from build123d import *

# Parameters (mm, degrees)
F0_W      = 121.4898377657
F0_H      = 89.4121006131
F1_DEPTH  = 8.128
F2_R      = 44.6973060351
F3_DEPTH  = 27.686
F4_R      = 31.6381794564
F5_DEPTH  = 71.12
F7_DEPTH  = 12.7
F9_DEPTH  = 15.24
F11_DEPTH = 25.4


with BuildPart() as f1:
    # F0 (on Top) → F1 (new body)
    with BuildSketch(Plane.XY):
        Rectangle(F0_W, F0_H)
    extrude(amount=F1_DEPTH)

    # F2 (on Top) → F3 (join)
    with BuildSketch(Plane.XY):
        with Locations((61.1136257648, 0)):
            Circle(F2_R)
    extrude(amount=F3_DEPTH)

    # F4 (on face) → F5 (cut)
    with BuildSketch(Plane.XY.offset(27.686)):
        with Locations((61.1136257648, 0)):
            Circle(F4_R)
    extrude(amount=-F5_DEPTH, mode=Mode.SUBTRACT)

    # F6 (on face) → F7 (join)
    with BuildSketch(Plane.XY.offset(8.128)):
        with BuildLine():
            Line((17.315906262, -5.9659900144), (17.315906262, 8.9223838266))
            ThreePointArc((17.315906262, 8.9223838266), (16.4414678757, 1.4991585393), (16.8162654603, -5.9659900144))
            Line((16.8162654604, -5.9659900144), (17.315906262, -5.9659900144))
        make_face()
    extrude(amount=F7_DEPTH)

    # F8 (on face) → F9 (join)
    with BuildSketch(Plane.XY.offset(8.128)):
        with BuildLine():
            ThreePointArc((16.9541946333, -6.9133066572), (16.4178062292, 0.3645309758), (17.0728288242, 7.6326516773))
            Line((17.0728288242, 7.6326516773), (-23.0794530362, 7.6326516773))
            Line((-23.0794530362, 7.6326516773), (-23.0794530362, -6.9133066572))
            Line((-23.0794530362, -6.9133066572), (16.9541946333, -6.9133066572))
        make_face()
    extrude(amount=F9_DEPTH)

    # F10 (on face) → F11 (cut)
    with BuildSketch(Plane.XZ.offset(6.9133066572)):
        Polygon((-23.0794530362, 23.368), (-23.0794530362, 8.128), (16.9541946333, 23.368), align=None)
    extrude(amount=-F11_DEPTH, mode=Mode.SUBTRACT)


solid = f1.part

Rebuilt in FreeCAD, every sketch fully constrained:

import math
import FreeCAD as App
import Part
import Sketcher
from FreeCAD import Vector
Q = App.Units.Quantity

doc = App.newDocument("Part")
body = doc.addObject("PartDesign::Body", "Body")

# Sketch on XY plane
sketch1 = doc.addObject("Sketcher::SketchObject", "Sketch")
body.addObject(sketch1)
sketch1.AttachmentSupport = (doc.XY_Plane, [""])
sketch1.MapMode = "FlatFace"
sketch1.addGeometry([
    Part.LineSegment(Vector(-60.744919, 44.70605, 0), Vector(-60.744919, -44.70605, 0)),
    Part.LineSegment(Vector(-60.744919, -44.70605, 0), Vector(60.744919, -44.70605, 0)),
    Part.LineSegment(Vector(60.744919, -44.70605, 0), Vector(60.744919, 44.70605, 0)),
    Part.LineSegment(Vector(60.744919, 44.70605, 0), Vector(-60.744919, 44.70605, 0)),
], False)
sketch1.addConstraint([
    Sketcher.Constraint("Coincident", 0, 2, 1, 1),
    Sketcher.Constraint("Coincident", 1, 2, 2, 1),
    Sketcher.Constraint("Coincident", 2, 2, 3, 1),
    Sketcher.Constraint("Coincident", 3, 2, 0, 1),
    Sketcher.Constraint("Vertical", 0),
    Sketcher.Constraint("Horizontal", 1),
    Sketcher.Constraint("Vertical", 2),
    Sketcher.Constraint("Horizontal", 3),
    Sketcher.Constraint("Symmetric", 0, 2, 2, 2, -1, 1),
    Sketcher.Constraint("DistanceY", 0, 2, 0, 1, Q("89.412101 mm")),
    Sketcher.Constraint("DistanceX", 1, 1, 1, 2, Q("121.489838 mm")),
])
pad1 = doc.addObject("PartDesign::Pad", "Pad")
body.addObject(pad1)
pad1.Profile = sketch1
pad1.Length = Q("0.32 in")

# Sketch on XY plane
sketch2 = doc.addObject("Sketcher::SketchObject", "Sketch001")
body.addObject(sketch2)
sketch2.AttachmentSupport = (doc.XY_Plane, [""])
sketch2.MapMode = "FlatFace"
sketch2.addGeometry(Part.Circle(Vector(61.113626, 0, 0), Vector(0, 0, 1), 44.697306), False)
sketch2.addConstraint([
    Sketcher.Constraint("PointOnObject", 0, 3, -1),
    Sketcher.Constraint("Diameter", 0, Q("89.394612 mm")),
    Sketcher.Constraint("DistanceX", -1, 1, 0, 3, Q("61.113626 mm")),
])
pad2 = doc.addObject("PartDesign::Pad", "Pad001")
body.addObject(pad2)
pad2.Profile = sketch2
pad2.Length = Q("1.09 in")

# Sketch on XY plane
sketch3 = doc.addObject("Sketcher::SketchObject", "Sketch002")
body.addObject(sketch3)
sketch3.AttachmentSupport = (doc.XY_Plane, [""])
sketch3.MapMode = "FlatFace"
sketch3.AttachmentOffset = App.Placement(Vector(0, 0, 1.09 * 25.4), App.Rotation())
sketch3.addGeometry(Part.Circle(Vector(61.113626, 0, 0), Vector(0, 0, 1), 31.638179), False)
sketch3.addConstraint([
    Sketcher.Constraint("PointOnObject", 0, 3, -1),
    Sketcher.Constraint("Diameter", 0, Q("63.276359 mm")),
    Sketcher.Constraint("DistanceX", -1, 1, 0, 3, Q("61.113626 mm")),
])
pocket1 = doc.addObject("PartDesign::Pocket", "Pocket")
body.addObject(pocket1)
pocket1.Profile = sketch3
pocket1.Length = Q("2.8 in")

# Sketch on XY plane
sketch4 = doc.addObject("Sketcher::SketchObject", "Sketch003")
body.addObject(sketch4)
sketch4.AttachmentSupport = (doc.XY_Plane, [""])
sketch4.MapMode = "FlatFace"
sketch4.AttachmentOffset = App.Placement(Vector(0, 0, 0.32 * 25.4), App.Rotation())
sketch4.addGeometry([
    Part.LineSegment(Vector(17.315906, -5.96599, 0), Vector(17.315906, 8.922384, 0)),
    Part.ArcOfCircle(Part.Circle(Vector(61.113626, 0, 0), Vector(0, 0, 1), 44.697306), math.radians(168.485382), math.radians(187.670468)),
    Part.LineSegment(Vector(16.816265, -5.96599, 0), Vector(17.315906, -5.96599, 0)),
], False)
sketch4.addConstraint([
    Sketcher.Constraint("Coincident", 0, 2, 1, 1),
    Sketcher.Constraint("Coincident", 1, 2, 2, 1),
    Sketcher.Constraint("Coincident", 2, 2, 0, 1),
    Sketcher.Constraint("Vertical", 0),
    Sketcher.Constraint("Horizontal", 2),
    Sketcher.Constraint("PointOnObject", 1, 3, -1),
    Sketcher.Constraint("Radius", 1, Q("44.697306 mm")),
    Sketcher.Constraint("DistanceX", 2, 1, 2, 2, Q("0.499641 mm")),
    Sketcher.Constraint("DistanceY", 0, 1, 0, 2, Q("14.888374 mm")),
    Sketcher.Constraint("DistanceX", -1, 1, 1, 3, Q("61.113626 mm")),
])
pad3 = doc.addObject("PartDesign::Pad", "Pad002")
body.addObject(pad3)
pad3.Profile = sketch4
pad3.Length = Q("0.5 in")

# Sketch on XY plane
sketch5 = doc.addObject("Sketcher::SketchObject", "Sketch004")
body.addObject(sketch5)
sketch5.AttachmentSupport = (doc.XY_Plane, [""])
sketch5.MapMode = "FlatFace"
sketch5.AttachmentOffset = App.Placement(Vector(0, 0, 0.32 * 25.4), App.Rotation())
sketch5.addGeometry([
    Part.ArcOfCircle(Part.Circle(Vector(61.113626, 0, 0), Vector(0, 0, 1), 44.697306), math.radians(170.167808), math.radians(188.897625)),
    Part.LineSegment(Vector(17.072829, 7.632652, 0), Vector(-23.079453, 7.632652, 0)),
    Part.LineSegment(Vector(-23.079453, 7.632652, 0), Vector(-23.079453, -6.913307, 0)),
    Part.LineSegment(Vector(-23.079453, -6.913307, 0), Vector(16.954195, -6.913307, 0)),
], False)
sketch5.addConstraint([
    Sketcher.Constraint("Coincident", 0, 1, 1, 1),
    Sketcher.Constraint("Coincident", 1, 2, 2, 1),
    Sketcher.Constraint("Coincident", 2, 2, 3, 1),
    Sketcher.Constraint("Coincident", 3, 2, 0, 2),
    Sketcher.Constraint("Horizontal", 1),
    Sketcher.Constraint("Vertical", 2),
    Sketcher.Constraint("Horizontal", 3),
    Sketcher.Constraint("PointOnObject", 0, 3, -1),
    Sketcher.Constraint("Radius", 0, Q("44.697306 mm")),
    Sketcher.Constraint("DistanceX", 1, 2, 1, 1, Q("40.152282 mm")),
    Sketcher.Constraint("DistanceY", 2, 2, 2, 1, Q("14.545958 mm")),
    Sketcher.Constraint("DistanceX", 3, 1, 3, 2, Q("40.033648 mm")),
    Sketcher.Constraint("DistanceX", -1, 1, 0, 1, Q("17.072829 mm")),
])
pad4 = doc.addObject("PartDesign::Pad", "Pad003")
body.addObject(pad4)
pad4.Profile = sketch5
pad4.Length = Q("0.6 in")

# Sketch on XZ plane
sketch6 = doc.addObject("Sketcher::SketchObject", "Sketch005")
body.addObject(sketch6)
sketch6.AttachmentSupport = (doc.XZ_Plane, [""])
sketch6.MapMode = "FlatFace"
sketch6.AttachmentOffset = App.Placement(Vector(0, 0, 6.913307), App.Rotation())
sketch6.addGeometry([
    Part.LineSegment(Vector(-23.079453, 23.368, 0), Vector(-23.079453, 8.128, 0)),
    Part.LineSegment(Vector(-23.079453, 8.128, 0), Vector(16.954195, 23.368, 0)),
    Part.LineSegment(Vector(16.954195, 23.368, 0), Vector(-23.079453, 23.368, 0)),
], False)
sketch6.addConstraint([
    Sketcher.Constraint("Coincident", 0, 2, 1, 1),
    Sketcher.Constraint("Coincident", 1, 2, 2, 1),
    Sketcher.Constraint("Coincident", 2, 2, 0, 1),
    Sketcher.Constraint("Vertical", 0),
    Sketcher.Constraint("Horizontal", 2),
    Sketcher.Constraint("DistanceY", 0, 2, 0, 1, Q("0.6 in")),
    Sketcher.Constraint("DistanceY", -1, 1, 0, 2, Q("0.32 in")),
    Sketcher.Constraint("DistanceX", 2, 2, 2, 1, Q("40.033648 mm")),
    Sketcher.Constraint("DistanceX", 0, 2, -1, 1, Q("23.079453 mm")),
])
pocket2 = doc.addObject("PartDesign::Pocket", "Pocket001")
body.addObject(pocket2)
pocket2.Profile = sketch6
pocket2.Length = Q("1 in")

doc.recompute()
